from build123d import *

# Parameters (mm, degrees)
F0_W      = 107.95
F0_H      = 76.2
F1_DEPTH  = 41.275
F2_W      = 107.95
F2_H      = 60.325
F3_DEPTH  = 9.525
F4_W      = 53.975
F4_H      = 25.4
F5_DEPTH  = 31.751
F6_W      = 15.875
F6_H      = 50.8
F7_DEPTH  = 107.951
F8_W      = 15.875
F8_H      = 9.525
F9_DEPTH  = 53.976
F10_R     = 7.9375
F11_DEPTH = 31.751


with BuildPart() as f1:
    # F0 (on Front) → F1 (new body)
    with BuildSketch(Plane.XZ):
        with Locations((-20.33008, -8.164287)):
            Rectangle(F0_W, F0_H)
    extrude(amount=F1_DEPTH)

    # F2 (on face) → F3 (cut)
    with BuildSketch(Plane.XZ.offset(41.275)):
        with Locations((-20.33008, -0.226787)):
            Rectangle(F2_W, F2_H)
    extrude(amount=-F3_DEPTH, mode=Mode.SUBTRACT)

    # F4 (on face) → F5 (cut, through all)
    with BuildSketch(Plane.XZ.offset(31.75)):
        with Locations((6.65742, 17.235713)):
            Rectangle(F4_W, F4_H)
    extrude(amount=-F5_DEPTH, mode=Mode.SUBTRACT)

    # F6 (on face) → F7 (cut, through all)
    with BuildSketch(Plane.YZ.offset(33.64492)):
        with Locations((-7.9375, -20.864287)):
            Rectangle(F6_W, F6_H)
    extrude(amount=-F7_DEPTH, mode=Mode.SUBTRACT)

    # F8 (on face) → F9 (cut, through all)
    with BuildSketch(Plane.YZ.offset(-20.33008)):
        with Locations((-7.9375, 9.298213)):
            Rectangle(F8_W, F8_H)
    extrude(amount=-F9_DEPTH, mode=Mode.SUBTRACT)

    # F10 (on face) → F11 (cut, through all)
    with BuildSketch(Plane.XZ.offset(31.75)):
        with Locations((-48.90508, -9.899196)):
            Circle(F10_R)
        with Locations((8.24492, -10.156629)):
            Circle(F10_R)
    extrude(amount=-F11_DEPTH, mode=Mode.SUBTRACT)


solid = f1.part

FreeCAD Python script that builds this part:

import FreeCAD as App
import Part
import Sketcher

V = App.Vector
Q = App.Units.Quantity

doc = App.newDocument("Part")
params = doc.addObject("Spreadsheet::Sheet", "Params")
for row, (alias, value) in enumerate([
    ("sketch1_height", "3 in"),
    ("sketch1_width", "4.25 in"),
    ("pad1_length", "1.625 in"),
    ("sketch2_width", "4.25 in"),
    ("sketch2_height", "2.375 in"),
    ("pocket1_length", "0.375 in"),
    ("sketch3_height", "1 in"),
    ("sketch3_width", "2.125 in"),
    ("sketch4_height", "2 in"),
    ("sketch4_width", "0.625 in"),
    ("sketch5_width", "0.625 in"),
    ("sketch5_height", "0.375 in"),
    ("sketch6_diameter", "0.625 in"),
], start=1):
    params.set(f"A{row}", alias)
    params.set(f"B{row}", "=" + value)
    params.setAlias(f"B{row}", alias)

body = doc.addObject("PartDesign::Body", "Body")

sketch1 = body.newObject("Sketcher::SketchObject", "Sketch")
sketch1.AttachmentSupport = (doc.getObject("XZ_Plane"), [""])
sketch1.MapMode = "FlatFace"
sketch1.addGeometry(Part.LineSegment(V(-74, 30, 0), V(-74, -46, 0)), False)
sketch1.addGeometry(Part.LineSegment(V(-74, -46, 0), V(34, -46, 0)), False)
sketch1.addGeometry(Part.LineSegment(V(34, -46, 0), V(34, 30, 0)), False)
sketch1.addGeometry(Part.LineSegment(V(34, 30, 0), V(-74, 30, 0)), False)
sketch1.addConstraint(Sketcher.Constraint("Coincident", 0, 2, 1, 1))
sketch1.addConstraint(Sketcher.Constraint("Coincident", 1, 2, 2, 1))
sketch1.addConstraint(Sketcher.Constraint("Coincident", 2, 2, 3, 1))
sketch1.addConstraint(Sketcher.Constraint("Coincident", 3, 2, 0, 1))
sketch1.addConstraint(Sketcher.Constraint("Vertical", 0))
sketch1.addConstraint(Sketcher.Constraint("Horizontal", 1))
sketch1.addConstraint(Sketcher.Constraint("Vertical", 2))
sketch1.addConstraint(Sketcher.Constraint("Horizontal", 3))
sketch1.addConstraint(Sketcher.Constraint("DistanceY", 0, 2, 0, 1, Q("3 in")))
sketch1.addConstraint(Sketcher.Constraint("DistanceX", 1, 1, 1, 2, Q("4.25 in")))
sketch1.addConstraint(Sketcher.Constraint("DistanceX", 0, 2, -1, 1, Q("74.30508 mm")))
sketch1.addConstraint(Sketcher.Constraint("DistanceY", 0, 2, -1, 1, Q("46.264287 mm")))
sketch1.setExpression("Constraints[8]", "Params.sketch1_height")
sketch1.setExpression("Constraints[9]", "Params.sketch1_width")
pad1 = body.newObject("PartDesign::Pad", "Pad")
pad1.Profile = sketch1
pad1.setExpression("Length", "Params.pad1_length")

sketch2 = body.newObject("Sketcher::SketchObject", "Sketch001")
sketch2.AttachmentSupport = (doc.getObject("XZ_Plane"), [""])
sketch2.MapMode = "FlatFace"
sketch2.AttachmentOffset = App.Placement(V(0, 0, 1.625 * 25.4), App.Rotation())
sketch2.addGeometry(Part.LineSegment(V(-74, 30, 0), V(-74, -30, 0)), False)
sketch2.addGeometry(Part.LineSegment(V(-74, -30, 0), V(34, -30, 0)), False)
sketch2.addGeometry(Part.LineSegment(V(34, -30, 0), V(34, 30, 0)), False)
sketch2.addGeometry(Part.LineSegment(V(34, 30, 0), V(-74, 30, 0)), False)
sketch2.addConstraint(Sketcher.Constraint("Coincident", 0, 2, 1, 1))
sketch2.addConstraint(Sketcher.Constraint("Coincident", 1, 2, 2, 1))
sketch2.addConstraint(Sketcher.Constraint("Coincident", 2, 2, 3, 1))
sketch2.addConstraint(Sketcher.Constraint("Coincident", 3, 2, 0, 1))
sketch2.addConstraint(Sketcher.Constraint("Vertical", 0))
sketch2.addConstraint(Sketcher.Constraint("Horizontal", 1))
sketch2.addConstraint(Sketcher.Constraint("Vertical", 2))
sketch2.addConstraint(Sketcher.Constraint("Horizontal", 3))
sketch2.addConstraint(Sketcher.Constraint("DistanceX", 1, 1, 1, 2, Q("4.25 in")))
sketch2.addConstraint(Sketcher.Constraint("DistanceY", 0, 2, 0, 1, Q("2.375 in")))
sketch2.addConstraint(Sketcher.Constraint("DistanceX", 0, 2, -1, 1, Q("74.30508 mm")))
sketch2.addConstraint(Sketcher.Constraint("DistanceY", 0, 2, -1, 1, Q("30.389287 mm")))
sketch2.setExpression("Constraints[8]", "Params.sketch2_width")
sketch2.setExpression("Constraints[9]", "Params.sketch2_height")
pocket1 = body.newObject("PartDesign::Pocket", "Pocket")
pocket1.Profile = sketch2
pocket1.setExpression("Length", "Params.pocket1_length")

sketch3 = body.newObject("Sketcher::SketchObject", "Sketch002")
sketch3.AttachmentSupport = (doc.getObject("XZ_Plane"), [""])
sketch3.MapMode = "FlatFace"
sketch3.AttachmentOffset = App.Placement(V(0, 0, 1.25 * 25.4), App.Rotation())
sketch3.addGeometry(Part.LineSegment(V(-20, 30, 0), V(-20, 5, 0)), False)
sketch3.addGeometry(Part.LineSegment(V(-20, 5, 0), V(34, 5, 0)), False)
sketch3.addGeometry(Part.LineSegment(V(34, 5, 0), V(34, 30, 0)), False)
sketch3.addGeometry(Part.LineSegment(V(34, 30, 0), V(-20, 30, 0)), False)
sketch3.addConstraint(Sketcher.Constraint("Coincident", 0, 2, 1, 1))
sketch3.addConstraint(Sketcher.Constraint("Coincident", 1, 2, 2, 1))
sketch3.addConstraint(Sketcher.Constraint("Coincident", 2, 2, 3, 1))
sketch3.addConstraint(Sketcher.Constraint("Coincident", 3, 2, 0, 1))
sketch3.addConstraint(Sketcher.Constraint("Vertical", 0))
sketch3.addConstraint(Sketcher.Constraint("Horizontal", 1))
sketch3.addConstraint(Sketcher.Constraint("Vertical", 2))
sketch3.addConstraint(Sketcher.Constraint("Horizontal", 3))
sketch3.addConstraint(Sketcher.Constraint("DistanceY", 0, 2, 0, 1, Q("1 in")))
sketch3.addConstraint(Sketcher.Constraint("DistanceX", 1, 1, 1, 2, Q("2.125 in")))
sketch3.addConstraint(Sketcher.Constraint("DistanceX", 0, 2, -1, 1, Q("20.33008 mm")))
sketch3.addConstraint(Sketcher.Constraint("DistanceY", -1, 1, 0, 2, Q("4.535713 mm")))
sketch3.setExpression("Constraints[8]", "Params.sketch3_height")
sketch3.setExpression("Constraints[9]", "Params.sketch3_width")
pocket2 = body.newObject("PartDesign::Pocket", "Pocket001")
pocket2.Profile = sketch3
pocket2.Type = "ThroughAll"

sketch4 = body.newObject("Sketcher::SketchObject", "Sketch003")
sketch4.AttachmentSupport = (doc.getObject("YZ_Plane"), [""])
sketch4.MapMode = "FlatFace"
sketch4.AttachmentOffset = App.Placement(V(0, 0, 33.64492), App.Rotation())
sketch4.addGeometry(Part.LineSegment(V(-16, 5, 0), V(-16, -46, 0)), False)
sketch4.addGeometry(Part.LineSegment(V(-16, -46, 0), V(0, -46, 0)), False)
sketch4.addGeometry(Part.LineSegment(V(0, -46, 0), V(0, 5, 0)), False)
sketch4.addGeometry(Part.LineSegment(V(0, 5, 0), V(-16, 5, 0)), False)
sketch4.addConstraint(Sketcher.Constraint("Coincident", 0, 2, 1, 1))
sketch4.addConstraint(Sketcher.Constraint("Coincident", 1, 2, 2, 1))
sketch4.addConstraint(Sketcher.Constraint("Coincident", 2, 2, 3, 1))
sketch4.addConstraint(Sketcher.Constraint("Coincident", 3, 2, 0, 1))
sketch4.addConstraint(Sketcher.Constraint("Vertical", 0))
sketch4.addConstraint(Sketcher.Constraint("Horizontal", 1))
sketch4.addConstraint(Sketcher.Constraint("Vertical", 2))
sketch4.addConstraint(Sketcher.Constraint("Horizontal", 3))
sketch4.addConstraint(Sketcher.Constraint("PointOnObject", 1, 2, -2))
sketch4.addConstraint(Sketcher.Constraint("DistanceY", 0, 2, 0, 1, Q("2 in")))
sketch4.addConstraint(Sketcher.Constraint("DistanceX", 1, 1, 1, 2, Q("0.625 in")))
sketch4.addConstraint(Sketcher.Constraint("DistanceY", 0, 2, -1, 1, Q("46.264287 mm")))
sketch4.setExpression("Constraints[9]", "Params.sketch4_height")
sketch4.setExpression("Constraints[10]", "Params.sketch4_width")
pocket3 = body.newObject("PartDesign::Pocket", "Pocket002")
pocket3.Profile = sketch4
pocket3.Type = "ThroughAll"

sketch5 = body.newObject("Sketcher::SketchObject", "Sketch004")
sketch5.AttachmentSupport = (doc.getObject("YZ_Plane"), [""])
sketch5.MapMode = "FlatFace"
sketch5.AttachmentOffset = App.Placement(V(0, 0, -20.33008), App.Rotation())
sketch5.addGeometry(Part.LineSegment(V(-16, 14, 0), V(-16, 5, 0)), False)
sketch5.addGeometry(Part.LineSegment(V(-16, 5, 0), V(0, 5, 0)), False)
sketch5.addGeometry(Part.LineSegment(V(0, 5, 0), V(0, 14, 0)), False)
sketch5.addGeometry(Part.LineSegment(V(0, 14, 0), V(-16, 14, 0)), False)
sketch5.addConstraint(Sketcher.Constraint("Coincident", 0, 2, 1, 1))
sketch5.addConstraint(Sketcher.Constraint("Coincident", 1, 2, 2, 1))
sketch5.addConstraint(Sketcher.Constraint("Coincident", 2, 2, 3, 1))
sketch5.addConstraint(Sketcher.Constraint("Coincident", 3, 2, 0, 1))
sketch5.addConstraint(Sketcher.Constraint("Vertical", 0))
sketch5.addConstraint(Sketcher.Constraint("Horizontal", 1))
sketch5.addConstraint(Sketcher.Constraint("Vertical", 2))
sketch5.addConstraint(Sketcher.Constraint("Horizontal", 3))
sketch5.addConstraint(Sketcher.Constraint("PointOnObject", 1, 2, -2))
sketch5.addConstraint(Sketcher.Constraint("DistanceX", 1, 1, 1, 2, Q("0.625 in")))
sketch5.addConstraint(Sketcher.Constraint("DistanceY", 0, 2, 0, 1, Q("0.375 in")))
sketch5.addConstraint(Sketcher.Constraint("DistanceY", -1, 1, 0, 2, Q("4.535713 mm")))
sketch5.setExpression("Constraints[9]", "Params.sketch5_width")
sketch5.setExpression("Constraints[10]", "Params.sketch5_height")
pocket4 = body.newObject("PartDesign::Pocket", "Pocket003")
pocket4.Profile = sketch5
pocket4.Type = "ThroughAll"

sketch6 = body.newObject("Sketcher::SketchObject", "Sketch005")
sketch6.AttachmentSupport = (doc.getObject("XZ_Plane"), [""])
sketch6.MapMode = "FlatFace"
sketch6.AttachmentOffset = App.Placement(V(0, 0, 1.25 * 25.4), App.Rotation())
sketch6.addGeometry(Part.Circle(V(-49, -10, 0), V(0, 0, 1), 8), False)
sketch6.addGeometry(Part.Circle(V(8, -10, 0), V(0, 0, 1), 8), False)
sketch6.addConstraint(Sketcher.Constraint("Equal", 0, 1))
sketch6.addConstraint(Sketcher.Constraint("Diameter", 0, Q("0.625 in")))
sketch6.addConstraint(Sketcher.Constraint("DistanceX", 0, 3, 1, 3, Q("2.25 in")))
sketch6.addConstraint(Sketcher.Constraint("DistanceX", 0, 3, -1, 1, Q("48.90508 mm")))
sketch6.addConstraint(Sketcher.Constraint("DistanceY", 1, 3, -1, 1, Q("10.156629 mm")))
sketch6.addConstraint(Sketcher.Constraint("DistanceY", 0, 3, -1, 1, Q("9.899196 mm")))
sketch6.setExpression("Constraints[1]", "Params.sketch6_diameter")
pocket5 = body.newObject("PartDesign::Pocket", "Pocket004")
pocket5.Profile = sketch6
pocket5.Type = "ThroughAll"

doc.recompute()
